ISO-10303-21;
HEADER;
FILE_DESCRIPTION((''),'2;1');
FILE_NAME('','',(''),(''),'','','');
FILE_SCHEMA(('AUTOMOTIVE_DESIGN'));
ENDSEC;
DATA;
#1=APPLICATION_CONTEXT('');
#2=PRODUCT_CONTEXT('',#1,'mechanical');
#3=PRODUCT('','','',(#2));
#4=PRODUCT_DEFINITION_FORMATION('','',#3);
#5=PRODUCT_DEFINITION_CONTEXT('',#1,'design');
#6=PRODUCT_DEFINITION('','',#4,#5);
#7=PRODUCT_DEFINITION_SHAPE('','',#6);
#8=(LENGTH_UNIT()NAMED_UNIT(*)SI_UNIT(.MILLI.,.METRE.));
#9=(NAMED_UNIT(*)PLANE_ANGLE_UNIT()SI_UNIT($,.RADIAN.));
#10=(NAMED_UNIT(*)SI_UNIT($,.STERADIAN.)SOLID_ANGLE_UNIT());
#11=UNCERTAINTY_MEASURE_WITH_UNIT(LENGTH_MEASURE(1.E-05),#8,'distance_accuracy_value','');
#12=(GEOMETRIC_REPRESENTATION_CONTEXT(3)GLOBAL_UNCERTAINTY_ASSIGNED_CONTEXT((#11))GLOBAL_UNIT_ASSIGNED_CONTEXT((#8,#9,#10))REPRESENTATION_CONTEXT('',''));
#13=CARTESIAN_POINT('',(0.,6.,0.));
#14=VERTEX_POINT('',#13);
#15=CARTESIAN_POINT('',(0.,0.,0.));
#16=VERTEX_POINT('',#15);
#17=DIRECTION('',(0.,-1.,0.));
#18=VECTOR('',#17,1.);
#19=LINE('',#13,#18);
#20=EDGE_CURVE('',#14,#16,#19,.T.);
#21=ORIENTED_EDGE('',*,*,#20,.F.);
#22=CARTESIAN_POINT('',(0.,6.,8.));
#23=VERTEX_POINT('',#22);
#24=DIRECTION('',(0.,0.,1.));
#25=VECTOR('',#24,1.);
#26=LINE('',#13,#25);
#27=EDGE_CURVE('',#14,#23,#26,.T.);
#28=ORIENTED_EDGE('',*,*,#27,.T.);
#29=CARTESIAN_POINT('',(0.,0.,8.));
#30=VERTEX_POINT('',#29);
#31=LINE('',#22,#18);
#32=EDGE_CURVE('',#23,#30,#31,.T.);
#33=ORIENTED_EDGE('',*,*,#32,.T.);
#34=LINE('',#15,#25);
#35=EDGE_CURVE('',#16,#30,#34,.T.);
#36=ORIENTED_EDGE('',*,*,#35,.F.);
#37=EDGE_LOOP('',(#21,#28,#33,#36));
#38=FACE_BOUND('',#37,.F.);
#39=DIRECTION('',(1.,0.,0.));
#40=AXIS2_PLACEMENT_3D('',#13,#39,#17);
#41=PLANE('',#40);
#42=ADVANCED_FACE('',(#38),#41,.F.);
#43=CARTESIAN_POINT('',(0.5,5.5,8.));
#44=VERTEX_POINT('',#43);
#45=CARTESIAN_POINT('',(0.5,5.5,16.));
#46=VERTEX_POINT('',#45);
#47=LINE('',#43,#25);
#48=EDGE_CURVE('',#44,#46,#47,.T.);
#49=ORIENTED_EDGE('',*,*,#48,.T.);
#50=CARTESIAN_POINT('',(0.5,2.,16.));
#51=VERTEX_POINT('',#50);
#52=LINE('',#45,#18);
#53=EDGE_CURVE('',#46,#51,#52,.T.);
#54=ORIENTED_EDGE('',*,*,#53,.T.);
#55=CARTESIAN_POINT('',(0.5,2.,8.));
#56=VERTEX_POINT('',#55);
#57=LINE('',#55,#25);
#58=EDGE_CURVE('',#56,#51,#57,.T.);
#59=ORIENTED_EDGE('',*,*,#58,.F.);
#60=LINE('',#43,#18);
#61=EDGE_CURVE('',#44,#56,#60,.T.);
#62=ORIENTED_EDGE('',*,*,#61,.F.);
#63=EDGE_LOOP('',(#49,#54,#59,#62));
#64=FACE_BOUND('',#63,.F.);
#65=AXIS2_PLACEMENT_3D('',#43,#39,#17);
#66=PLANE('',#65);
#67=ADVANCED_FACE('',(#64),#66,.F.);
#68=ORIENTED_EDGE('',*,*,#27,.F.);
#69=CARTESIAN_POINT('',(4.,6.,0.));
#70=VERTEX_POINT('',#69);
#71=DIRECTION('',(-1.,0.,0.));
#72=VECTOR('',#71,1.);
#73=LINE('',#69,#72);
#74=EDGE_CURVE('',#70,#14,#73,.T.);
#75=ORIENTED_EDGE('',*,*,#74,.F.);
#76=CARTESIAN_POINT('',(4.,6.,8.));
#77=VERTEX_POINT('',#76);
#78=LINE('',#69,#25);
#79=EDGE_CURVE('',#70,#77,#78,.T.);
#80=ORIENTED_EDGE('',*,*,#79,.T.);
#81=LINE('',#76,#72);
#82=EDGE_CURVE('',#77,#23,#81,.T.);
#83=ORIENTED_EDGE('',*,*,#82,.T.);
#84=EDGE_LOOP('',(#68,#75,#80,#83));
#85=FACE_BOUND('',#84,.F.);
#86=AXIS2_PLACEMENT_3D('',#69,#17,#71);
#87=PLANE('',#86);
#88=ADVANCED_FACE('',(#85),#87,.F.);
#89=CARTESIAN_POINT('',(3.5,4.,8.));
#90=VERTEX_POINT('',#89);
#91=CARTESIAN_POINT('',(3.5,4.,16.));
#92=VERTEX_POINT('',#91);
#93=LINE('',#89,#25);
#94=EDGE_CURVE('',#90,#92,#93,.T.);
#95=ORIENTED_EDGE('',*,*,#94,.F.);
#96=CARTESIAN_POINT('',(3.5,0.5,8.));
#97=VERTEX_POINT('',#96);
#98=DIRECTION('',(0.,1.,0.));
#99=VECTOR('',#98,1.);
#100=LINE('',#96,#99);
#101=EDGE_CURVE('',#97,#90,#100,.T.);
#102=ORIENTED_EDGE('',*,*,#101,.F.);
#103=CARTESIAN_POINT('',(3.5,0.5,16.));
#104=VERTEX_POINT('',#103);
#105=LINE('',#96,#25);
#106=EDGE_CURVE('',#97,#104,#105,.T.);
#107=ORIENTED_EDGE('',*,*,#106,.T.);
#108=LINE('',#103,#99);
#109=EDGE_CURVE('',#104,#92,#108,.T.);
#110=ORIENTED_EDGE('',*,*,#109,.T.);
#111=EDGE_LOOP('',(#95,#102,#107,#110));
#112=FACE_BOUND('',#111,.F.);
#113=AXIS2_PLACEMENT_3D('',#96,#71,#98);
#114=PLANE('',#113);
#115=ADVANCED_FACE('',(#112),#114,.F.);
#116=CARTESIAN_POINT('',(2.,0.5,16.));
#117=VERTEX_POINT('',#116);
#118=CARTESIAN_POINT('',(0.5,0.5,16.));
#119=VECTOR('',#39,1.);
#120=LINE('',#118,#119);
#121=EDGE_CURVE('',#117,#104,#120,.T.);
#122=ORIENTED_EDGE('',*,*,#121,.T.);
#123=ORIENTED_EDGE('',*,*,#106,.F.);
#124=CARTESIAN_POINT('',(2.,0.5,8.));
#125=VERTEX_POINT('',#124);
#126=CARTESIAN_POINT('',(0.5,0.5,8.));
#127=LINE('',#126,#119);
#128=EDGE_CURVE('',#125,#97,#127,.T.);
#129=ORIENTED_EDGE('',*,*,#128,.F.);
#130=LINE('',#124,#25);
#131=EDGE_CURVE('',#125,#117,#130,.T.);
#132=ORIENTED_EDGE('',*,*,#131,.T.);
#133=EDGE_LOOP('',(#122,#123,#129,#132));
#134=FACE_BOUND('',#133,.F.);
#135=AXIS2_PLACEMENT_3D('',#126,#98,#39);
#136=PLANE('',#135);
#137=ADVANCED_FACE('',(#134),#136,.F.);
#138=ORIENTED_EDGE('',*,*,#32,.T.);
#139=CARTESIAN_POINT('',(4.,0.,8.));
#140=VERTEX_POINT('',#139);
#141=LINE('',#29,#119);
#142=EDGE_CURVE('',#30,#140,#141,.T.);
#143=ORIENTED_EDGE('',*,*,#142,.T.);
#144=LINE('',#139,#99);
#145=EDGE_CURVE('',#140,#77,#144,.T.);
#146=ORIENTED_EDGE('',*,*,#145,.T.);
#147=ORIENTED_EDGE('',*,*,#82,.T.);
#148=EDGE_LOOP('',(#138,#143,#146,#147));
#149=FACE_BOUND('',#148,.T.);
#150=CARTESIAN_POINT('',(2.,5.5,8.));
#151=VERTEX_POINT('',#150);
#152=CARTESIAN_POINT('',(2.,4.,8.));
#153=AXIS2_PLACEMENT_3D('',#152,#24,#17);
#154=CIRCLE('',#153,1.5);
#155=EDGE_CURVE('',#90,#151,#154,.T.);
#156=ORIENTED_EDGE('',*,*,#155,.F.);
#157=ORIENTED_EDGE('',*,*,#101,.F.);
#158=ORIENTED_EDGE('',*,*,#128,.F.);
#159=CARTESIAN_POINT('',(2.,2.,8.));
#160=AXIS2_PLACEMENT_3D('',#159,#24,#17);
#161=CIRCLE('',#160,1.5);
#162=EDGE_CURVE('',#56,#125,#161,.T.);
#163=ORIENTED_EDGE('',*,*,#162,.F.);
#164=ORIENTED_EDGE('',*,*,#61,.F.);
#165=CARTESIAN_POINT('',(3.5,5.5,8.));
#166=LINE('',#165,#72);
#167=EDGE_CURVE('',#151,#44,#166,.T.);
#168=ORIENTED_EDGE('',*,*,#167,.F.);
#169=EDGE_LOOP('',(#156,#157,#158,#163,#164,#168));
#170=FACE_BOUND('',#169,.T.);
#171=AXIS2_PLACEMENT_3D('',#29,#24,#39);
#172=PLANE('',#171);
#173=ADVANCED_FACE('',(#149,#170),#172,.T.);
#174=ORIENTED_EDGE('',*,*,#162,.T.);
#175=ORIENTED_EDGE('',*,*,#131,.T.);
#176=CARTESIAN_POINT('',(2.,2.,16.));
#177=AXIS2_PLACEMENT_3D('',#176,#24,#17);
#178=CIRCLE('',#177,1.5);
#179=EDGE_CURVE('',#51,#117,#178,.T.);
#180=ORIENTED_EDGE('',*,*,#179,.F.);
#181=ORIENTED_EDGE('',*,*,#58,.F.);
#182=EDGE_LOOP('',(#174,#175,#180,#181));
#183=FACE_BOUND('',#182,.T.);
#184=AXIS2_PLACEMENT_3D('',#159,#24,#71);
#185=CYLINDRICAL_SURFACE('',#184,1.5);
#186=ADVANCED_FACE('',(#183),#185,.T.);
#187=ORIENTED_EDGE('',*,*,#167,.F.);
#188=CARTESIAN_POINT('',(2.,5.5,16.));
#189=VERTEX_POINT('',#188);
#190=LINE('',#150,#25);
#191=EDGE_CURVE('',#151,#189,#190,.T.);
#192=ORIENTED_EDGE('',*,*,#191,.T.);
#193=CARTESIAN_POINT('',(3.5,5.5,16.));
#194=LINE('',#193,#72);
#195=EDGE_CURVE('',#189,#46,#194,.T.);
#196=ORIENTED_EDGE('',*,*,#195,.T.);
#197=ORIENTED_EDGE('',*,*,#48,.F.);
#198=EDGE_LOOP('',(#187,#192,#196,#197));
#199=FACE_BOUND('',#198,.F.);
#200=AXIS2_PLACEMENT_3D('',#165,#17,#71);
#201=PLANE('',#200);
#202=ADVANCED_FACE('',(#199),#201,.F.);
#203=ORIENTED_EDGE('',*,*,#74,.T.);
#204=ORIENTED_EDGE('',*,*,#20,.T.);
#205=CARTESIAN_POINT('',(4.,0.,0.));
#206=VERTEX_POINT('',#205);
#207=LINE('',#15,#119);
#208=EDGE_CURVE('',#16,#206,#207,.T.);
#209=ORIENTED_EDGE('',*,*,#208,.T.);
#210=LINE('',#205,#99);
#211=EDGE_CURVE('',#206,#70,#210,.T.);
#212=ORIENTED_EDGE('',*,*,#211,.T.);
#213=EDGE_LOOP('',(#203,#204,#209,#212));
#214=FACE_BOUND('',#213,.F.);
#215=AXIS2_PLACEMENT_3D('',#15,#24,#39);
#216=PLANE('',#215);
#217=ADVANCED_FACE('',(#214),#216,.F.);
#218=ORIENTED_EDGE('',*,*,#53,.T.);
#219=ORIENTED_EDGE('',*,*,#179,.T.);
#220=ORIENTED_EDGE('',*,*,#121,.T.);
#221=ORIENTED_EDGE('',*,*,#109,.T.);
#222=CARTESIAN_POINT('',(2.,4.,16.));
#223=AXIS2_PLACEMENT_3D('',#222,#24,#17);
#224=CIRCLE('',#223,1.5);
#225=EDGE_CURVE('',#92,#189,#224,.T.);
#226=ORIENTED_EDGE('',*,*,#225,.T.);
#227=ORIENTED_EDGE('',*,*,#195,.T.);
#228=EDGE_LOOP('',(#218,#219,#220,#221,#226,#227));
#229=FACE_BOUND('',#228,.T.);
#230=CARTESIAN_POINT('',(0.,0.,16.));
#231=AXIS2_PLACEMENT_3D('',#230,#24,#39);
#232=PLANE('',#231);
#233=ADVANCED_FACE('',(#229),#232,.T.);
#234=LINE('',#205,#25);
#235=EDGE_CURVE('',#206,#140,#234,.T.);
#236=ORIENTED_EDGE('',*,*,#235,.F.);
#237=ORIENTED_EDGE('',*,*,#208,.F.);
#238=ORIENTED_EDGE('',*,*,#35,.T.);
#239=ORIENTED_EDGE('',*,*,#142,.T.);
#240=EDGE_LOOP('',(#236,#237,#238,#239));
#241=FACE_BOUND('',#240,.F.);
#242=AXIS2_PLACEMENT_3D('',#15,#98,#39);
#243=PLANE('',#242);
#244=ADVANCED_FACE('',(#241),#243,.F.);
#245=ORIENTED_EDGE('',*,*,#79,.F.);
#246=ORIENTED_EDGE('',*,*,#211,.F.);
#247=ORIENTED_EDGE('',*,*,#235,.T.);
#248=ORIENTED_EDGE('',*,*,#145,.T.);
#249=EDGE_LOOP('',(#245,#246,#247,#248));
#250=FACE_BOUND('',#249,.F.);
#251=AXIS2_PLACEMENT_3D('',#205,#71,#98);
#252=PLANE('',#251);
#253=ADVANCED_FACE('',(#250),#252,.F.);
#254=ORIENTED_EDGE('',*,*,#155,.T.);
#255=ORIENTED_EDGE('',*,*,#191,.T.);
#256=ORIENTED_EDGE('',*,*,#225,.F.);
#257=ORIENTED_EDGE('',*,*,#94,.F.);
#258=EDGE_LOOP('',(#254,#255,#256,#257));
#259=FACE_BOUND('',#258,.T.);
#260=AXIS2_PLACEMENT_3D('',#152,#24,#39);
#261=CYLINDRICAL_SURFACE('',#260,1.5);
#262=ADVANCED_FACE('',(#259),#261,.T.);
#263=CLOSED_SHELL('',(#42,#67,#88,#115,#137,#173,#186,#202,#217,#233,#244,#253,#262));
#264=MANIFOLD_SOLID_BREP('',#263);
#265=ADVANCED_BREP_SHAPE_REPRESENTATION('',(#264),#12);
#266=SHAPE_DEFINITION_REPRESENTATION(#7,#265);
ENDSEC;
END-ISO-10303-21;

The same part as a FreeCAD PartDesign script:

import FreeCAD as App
import Part
import Sketcher


def edges_at(feature, points):
    """Names of the edges that pass closest to the given points."""
    edges = feature.Shape.Edges
    near = lambda p: min(range(len(edges)), key=lambda i: edges[i].distToShape(Part.Vertex(*p))[0])
    return sorted({f"Edge{near(p) + 1}" for p in points})

doc = App.newDocument("Part")
body = doc.addObject("PartDesign::Body", "Body")

# Sketch on XY plane
sketch1 = body.newObject("Sketcher::SketchObject", "Sketch")
sketch1.AttachmentSupport = (doc.getObject("XY_Plane"), [""])
sketch1.MapMode = "FlatFace"
sketch1.addGeometry(Part.LineSegment(App.Vector(0, 6, 0), App.Vector(0, 0, 0)), False)
sketch1.addGeometry(Part.LineSegment(App.Vector(0, 0, 0), App.Vector(4, 0, 0)), False)
sketch1.addGeometry(Part.LineSegment(App.Vector(4, 0, 0), App.Vector(4, 6, 0)), False)
sketch1.addGeometry(Part.LineSegment(App.Vector(4, 6, 0), App.Vector(0, 6, 0)), False)
sketch1.addConstraint(Sketcher.Constraint("Coincident", 0, 2, 1, 1))
sketch1.addConstraint(Sketcher.Constraint("Coincident", 1, 2, 2, 1))
sketch1.addConstraint(Sketcher.Constraint("Coincident", 2, 2, 3, 1))
sketch1.addConstraint(Sketcher.Constraint("Coincident", 3, 2, 0, 1))
sketch1.addConstraint(Sketcher.Constraint("Vertical", 0))
sketch1.addConstraint(Sketcher.Constraint("Horizontal", 1))
sketch1.addConstraint(Sketcher.Constraint("Vertical", 2))
sketch1.addConstraint(Sketcher.Constraint("Horizontal", 3))
sketch1.addConstraint(Sketcher.Constraint("Coincident", 0, 2, -1, 1))
sketch1.addConstraint(Sketcher.Constraint("DistanceX", 1, 1, 1, 2, 4.0))
sketch1.addConstraint(Sketcher.Constraint("DistanceY", 0, 2, 0, 1, 6.0))
pad1 = body.newObject("PartDesign::Pad", "Pad")
pad1.Profile = sketch1
pad1.Length = 8

# Sketch on XY plane
sketch2 = body.newObject("Sketcher::SketchObject", "Sketch001")
sketch2.AttachmentSupport = (doc.getObject("XY_Plane"), [""])
sketch2.MapMode = "FlatFace"
sketch2.AttachmentOffset = App.Placement(App.Vector(0, 0, 8), App.Rotation())
sketch2.addGeometry(Part.LineSegment(App.Vector(0.5, 5.5, 0), App.Vector(0.5, 0.5, 0)), False)
sketch2.addGeometry(Part.LineSegment(App.Vector(0.5, 0.5, 0), App.Vector(3.5, 0.5, 0)), False)
sketch2.addGeometry(Part.LineSegment(App.Vector(3.5, 0.5, 0), App.Vector(3.5, 5.5, 0)), False)
sketch2.addGeometry(Part.LineSegment(App.Vector(3.5, 5.5, 0), App.Vector(0.5, 5.5, 0)), False)
sketch2.addConstraint(Sketcher.Constraint("Coincident", 0, 2, 1, 1))
sketch2.addConstraint(Sketcher.Constraint("Coincident", 1, 2, 2, 1))
sketch2.addConstraint(Sketcher.Constraint("Coincident", 2, 2, 3, 1))
sketch2.addConstraint(Sketcher.Constraint("Coincident", 3, 2, 0, 1))
sketch2.addConstraint(Sketcher.Constraint("Vertical", 0))
sketch2.addConstraint(Sketcher.Constraint("Horizontal", 1))
sketch2.addConstraint(Sketcher.Constraint("Vertical", 2))
sketch2.addConstraint(Sketcher.Constraint("Horizontal", 3))
sketch2.addConstraint(Sketcher.Constraint("DistanceX", 1, 1, 1, 2, 3.0))
sketch2.addConstraint(Sketcher.Constraint("DistanceY", 0, 2, 0, 1, 5.0))
sketch2.addConstraint(Sketcher.Constraint("DistanceX", -1, 1, 0, 2, 0.5))
sketch2.addConstraint(Sketcher.Constraint("DistanceY", -1, 1, 0, 2, 0.5))
pad2 = body.newObject("PartDesign::Pad", "Pad001")
pad2.Profile = sketch2
pad2.Length = 8
doc.recompute()

fillet = body.newObject("PartDesign::Fillet", "Fillet")
fillet.Base = (pad2, edges_at(pad2, [(3.5, 5.5, 12), (0.5, 0.5, 12)]))
fillet.Radius = 1.5

doc.recompute()
